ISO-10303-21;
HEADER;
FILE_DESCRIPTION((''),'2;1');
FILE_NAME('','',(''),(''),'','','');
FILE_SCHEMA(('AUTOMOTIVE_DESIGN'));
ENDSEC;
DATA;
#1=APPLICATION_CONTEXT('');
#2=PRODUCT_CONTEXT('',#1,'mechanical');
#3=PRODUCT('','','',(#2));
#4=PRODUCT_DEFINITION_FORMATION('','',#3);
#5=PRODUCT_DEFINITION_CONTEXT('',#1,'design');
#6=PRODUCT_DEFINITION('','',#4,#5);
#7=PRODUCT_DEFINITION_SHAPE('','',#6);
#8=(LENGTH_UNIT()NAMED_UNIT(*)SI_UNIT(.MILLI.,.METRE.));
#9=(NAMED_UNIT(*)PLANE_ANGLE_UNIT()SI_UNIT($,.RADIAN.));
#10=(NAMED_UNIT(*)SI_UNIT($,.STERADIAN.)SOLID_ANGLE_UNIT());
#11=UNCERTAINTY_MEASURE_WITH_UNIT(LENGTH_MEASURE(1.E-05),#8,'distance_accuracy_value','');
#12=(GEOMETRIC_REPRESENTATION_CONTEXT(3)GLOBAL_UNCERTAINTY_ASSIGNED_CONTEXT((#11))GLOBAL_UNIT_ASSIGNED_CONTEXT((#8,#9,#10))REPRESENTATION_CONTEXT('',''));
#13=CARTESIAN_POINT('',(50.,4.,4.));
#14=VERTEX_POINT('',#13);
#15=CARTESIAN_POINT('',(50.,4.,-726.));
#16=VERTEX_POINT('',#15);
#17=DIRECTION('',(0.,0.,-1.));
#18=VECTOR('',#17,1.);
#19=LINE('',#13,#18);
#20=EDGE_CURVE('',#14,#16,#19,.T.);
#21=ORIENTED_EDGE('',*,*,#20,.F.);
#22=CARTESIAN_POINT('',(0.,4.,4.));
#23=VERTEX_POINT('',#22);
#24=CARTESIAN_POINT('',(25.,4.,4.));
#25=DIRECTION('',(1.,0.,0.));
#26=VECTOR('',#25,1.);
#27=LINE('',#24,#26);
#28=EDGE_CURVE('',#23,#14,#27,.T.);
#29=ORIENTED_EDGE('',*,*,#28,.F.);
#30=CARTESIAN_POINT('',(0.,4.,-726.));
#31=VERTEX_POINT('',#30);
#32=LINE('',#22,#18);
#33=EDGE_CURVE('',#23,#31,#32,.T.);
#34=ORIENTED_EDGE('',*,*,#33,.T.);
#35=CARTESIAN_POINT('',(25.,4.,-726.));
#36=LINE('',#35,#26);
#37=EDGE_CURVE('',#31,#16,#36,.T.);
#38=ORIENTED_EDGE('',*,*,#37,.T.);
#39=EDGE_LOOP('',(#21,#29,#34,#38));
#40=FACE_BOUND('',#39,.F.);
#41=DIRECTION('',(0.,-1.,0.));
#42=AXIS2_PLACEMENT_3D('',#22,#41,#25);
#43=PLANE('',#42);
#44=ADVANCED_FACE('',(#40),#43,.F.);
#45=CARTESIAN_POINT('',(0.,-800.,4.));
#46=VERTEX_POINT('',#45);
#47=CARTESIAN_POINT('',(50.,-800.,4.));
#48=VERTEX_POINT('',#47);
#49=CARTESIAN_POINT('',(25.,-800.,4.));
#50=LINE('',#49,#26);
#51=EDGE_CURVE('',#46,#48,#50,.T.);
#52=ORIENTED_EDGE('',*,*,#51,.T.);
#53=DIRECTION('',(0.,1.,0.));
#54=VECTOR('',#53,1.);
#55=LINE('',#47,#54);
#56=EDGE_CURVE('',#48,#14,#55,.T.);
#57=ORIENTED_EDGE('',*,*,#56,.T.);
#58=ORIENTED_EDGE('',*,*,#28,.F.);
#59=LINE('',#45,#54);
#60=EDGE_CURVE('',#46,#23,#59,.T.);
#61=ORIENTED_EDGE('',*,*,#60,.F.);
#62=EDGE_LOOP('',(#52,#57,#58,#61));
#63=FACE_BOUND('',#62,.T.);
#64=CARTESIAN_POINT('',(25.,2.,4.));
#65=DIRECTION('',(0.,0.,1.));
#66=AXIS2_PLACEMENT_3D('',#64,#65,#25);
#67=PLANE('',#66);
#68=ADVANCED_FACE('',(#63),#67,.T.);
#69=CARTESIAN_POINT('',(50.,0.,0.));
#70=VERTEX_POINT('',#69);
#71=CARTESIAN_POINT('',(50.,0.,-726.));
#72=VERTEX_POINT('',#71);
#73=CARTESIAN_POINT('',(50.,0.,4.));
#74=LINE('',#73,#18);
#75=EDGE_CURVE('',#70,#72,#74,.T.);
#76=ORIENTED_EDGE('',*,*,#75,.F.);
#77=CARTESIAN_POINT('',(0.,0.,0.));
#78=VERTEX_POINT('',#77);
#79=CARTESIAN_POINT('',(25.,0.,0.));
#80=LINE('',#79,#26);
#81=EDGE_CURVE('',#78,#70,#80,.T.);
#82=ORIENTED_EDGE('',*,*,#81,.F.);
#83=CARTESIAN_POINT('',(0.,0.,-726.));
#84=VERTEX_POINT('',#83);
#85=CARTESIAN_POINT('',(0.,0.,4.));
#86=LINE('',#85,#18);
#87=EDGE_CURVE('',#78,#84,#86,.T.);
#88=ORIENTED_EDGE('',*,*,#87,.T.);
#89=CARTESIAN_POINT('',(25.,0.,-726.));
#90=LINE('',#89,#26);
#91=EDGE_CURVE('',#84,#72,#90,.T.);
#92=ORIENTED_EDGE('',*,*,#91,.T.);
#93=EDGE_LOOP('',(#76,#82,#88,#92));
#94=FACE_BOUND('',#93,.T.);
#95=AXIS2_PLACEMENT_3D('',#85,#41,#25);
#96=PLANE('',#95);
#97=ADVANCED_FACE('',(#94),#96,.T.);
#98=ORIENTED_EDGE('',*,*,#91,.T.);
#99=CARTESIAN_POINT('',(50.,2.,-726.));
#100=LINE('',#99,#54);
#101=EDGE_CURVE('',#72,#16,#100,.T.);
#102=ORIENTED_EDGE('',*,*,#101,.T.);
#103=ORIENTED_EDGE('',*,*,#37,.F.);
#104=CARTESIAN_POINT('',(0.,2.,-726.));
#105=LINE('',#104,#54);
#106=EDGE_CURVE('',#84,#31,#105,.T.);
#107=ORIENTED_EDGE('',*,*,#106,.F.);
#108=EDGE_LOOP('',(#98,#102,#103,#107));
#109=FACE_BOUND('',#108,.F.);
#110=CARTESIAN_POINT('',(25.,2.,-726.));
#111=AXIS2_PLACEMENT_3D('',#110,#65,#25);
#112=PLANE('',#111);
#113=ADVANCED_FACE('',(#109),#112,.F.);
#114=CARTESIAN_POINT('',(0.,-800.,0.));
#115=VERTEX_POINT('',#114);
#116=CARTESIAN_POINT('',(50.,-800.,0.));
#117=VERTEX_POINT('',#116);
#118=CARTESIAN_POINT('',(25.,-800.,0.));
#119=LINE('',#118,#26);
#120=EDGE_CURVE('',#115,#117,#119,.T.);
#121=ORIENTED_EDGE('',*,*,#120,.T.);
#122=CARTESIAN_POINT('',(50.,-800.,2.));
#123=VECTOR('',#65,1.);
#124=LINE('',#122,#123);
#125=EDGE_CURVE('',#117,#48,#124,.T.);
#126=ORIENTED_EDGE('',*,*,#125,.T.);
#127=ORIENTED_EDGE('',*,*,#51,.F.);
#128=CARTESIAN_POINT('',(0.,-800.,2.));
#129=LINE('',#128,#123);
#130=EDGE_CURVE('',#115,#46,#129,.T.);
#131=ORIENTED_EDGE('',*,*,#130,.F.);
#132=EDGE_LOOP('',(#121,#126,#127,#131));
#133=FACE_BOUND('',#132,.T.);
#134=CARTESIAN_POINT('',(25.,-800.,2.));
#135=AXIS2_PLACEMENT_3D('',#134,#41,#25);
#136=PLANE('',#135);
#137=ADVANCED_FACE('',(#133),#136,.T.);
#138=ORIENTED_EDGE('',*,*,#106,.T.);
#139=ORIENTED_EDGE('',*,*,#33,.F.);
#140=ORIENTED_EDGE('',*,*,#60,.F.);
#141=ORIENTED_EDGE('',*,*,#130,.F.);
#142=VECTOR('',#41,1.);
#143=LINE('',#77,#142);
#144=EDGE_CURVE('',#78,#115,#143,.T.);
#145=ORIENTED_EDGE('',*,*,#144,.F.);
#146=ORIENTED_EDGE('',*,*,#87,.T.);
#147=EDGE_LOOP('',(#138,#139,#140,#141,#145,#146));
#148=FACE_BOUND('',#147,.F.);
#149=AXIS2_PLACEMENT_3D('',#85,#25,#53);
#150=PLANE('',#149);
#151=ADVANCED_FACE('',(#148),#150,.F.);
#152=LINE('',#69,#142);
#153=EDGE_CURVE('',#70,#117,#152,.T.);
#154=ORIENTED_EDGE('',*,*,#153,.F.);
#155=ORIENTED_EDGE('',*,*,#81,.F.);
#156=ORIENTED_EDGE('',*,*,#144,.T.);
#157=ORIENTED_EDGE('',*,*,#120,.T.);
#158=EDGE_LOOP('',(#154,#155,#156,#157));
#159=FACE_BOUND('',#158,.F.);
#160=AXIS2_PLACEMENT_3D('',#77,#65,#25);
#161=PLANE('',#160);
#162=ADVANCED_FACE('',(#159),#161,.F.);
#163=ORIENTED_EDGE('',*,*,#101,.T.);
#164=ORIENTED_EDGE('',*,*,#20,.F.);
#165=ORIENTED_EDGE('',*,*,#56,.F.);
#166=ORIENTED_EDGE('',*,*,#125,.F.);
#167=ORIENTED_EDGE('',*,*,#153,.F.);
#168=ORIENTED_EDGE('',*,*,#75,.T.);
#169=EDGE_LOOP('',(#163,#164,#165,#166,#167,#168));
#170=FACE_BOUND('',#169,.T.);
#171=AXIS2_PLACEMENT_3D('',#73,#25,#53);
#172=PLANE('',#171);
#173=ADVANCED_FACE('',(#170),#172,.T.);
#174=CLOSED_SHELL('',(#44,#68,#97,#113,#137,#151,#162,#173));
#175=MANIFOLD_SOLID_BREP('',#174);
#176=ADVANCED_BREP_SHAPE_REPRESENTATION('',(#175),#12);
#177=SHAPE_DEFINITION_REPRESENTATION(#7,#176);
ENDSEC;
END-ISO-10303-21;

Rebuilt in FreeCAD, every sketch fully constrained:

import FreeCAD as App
import Part
import Sketcher

V = App.Vector
Q = App.Units.Quantity


def add_polygon(sketch, points):
    """Adds a closed chain of lines whose ends are joined by coincident constraints."""
    first, n = sketch.GeometryCount, len(points)
    for a, b in zip(points, points[1:] + points[:1]):
        sketch.addGeometry(Part.LineSegment(App.Vector(*a, 0), App.Vector(*b, 0)), False)
    for i in range(n):
        sketch.addConstraint(Sketcher.Constraint("Coincident", first + i, 2, first + (i + 1) % n, 1))

doc = App.newDocument("Part")
params = doc.addObject("Spreadsheet::Sheet", "Params")
for row, (alias, value) in enumerate([
    ("sketch1_width", "50 mm"),
    ("sketch1_height", "4 mm"),
    ("pad1_length", "800 mm"),
    ("sketch2_width", "50 mm"),
    ("sketch2_height", "4 mm"),
    ("pad2_length", "730 mm"),
], start=1):
    params.set(f"A{row}", alias)
    params.set(f"B{row}", "=" + value)
    params.setAlias(f"B{row}", alias)

body = doc.addObject("PartDesign::Body", "Body")

# Sketch on XZ plane
sketch1 = body.newObject("Sketcher::SketchObject", "Sketch")
sketch1.AttachmentSupport = (doc.getObject("XZ_Plane"), [""])
sketch1.MapMode = "FlatFace"
add_polygon(sketch1, [(0, 4), (0, 0), (50, 0), (50, 4)])  # lines 0-3
sketch1.addConstraint([
    Sketcher.Constraint("Vertical", 0),
    Sketcher.Constraint("Horizontal", 1),
    Sketcher.Constraint("Vertical", 2),
    Sketcher.Constraint("Horizontal", 3),
    Sketcher.Constraint("Coincident", 0, 2, -1, 1),
    Sketcher.Constraint("DistanceX", 1, 1, 1, 2, Q("50 mm")),
    Sketcher.Constraint("DistanceY", 0, 2, 0, 1, Q("4 mm")),
])
sketch1.setExpression("Constraints[9]", "Params.sketch1_width")
sketch1.setExpression("Constraints[10]", "Params.sketch1_height")
pad1 = body.newObject("PartDesign::Pad", "Pad")
pad1.Profile = sketch1
pad1.setExpression("Length", "Params.pad1_length")

# Sketch on XY plane
sketch2 = body.newObject("Sketcher::SketchObject", "Sketch001")
sketch2.AttachmentSupport = (doc.getObject("XY_Plane"), [""])
sketch2.MapMode = "FlatFace"
sketch2.AttachmentOffset = App.Placement(V(0, 0, 4), App.Rotation())
add_polygon(sketch2, [(0, 4), (0, 0), (50, 0), (50, 4)])  # lines 0-3
sketch2.addConstraint([
    Sketcher.Constraint("Vertical", 0),
    Sketcher.Constraint("Horizontal", 1),
    Sketcher.Constraint("Vertical", 2),
    Sketcher.Constraint("Horizontal", 3),
    Sketcher.Constraint("Coincident", 0, 2, -1, 1),
    Sketcher.Constraint("DistanceX", 1, 1, 1, 2, Q("50 mm")),
    Sketcher.Constraint("DistanceY", 0, 2, 0, 1, Q("4 mm")),
])
sketch2.setExpression("Constraints[9]", "Params.sketch2_width")
sketch2.setExpression("Constraints[10]", "Params.sketch2_height")
pad2 = body.newObject("PartDesign::Pad", "Pad001")
pad2.Profile = sketch2
pad2.setExpression("Length", "Params.pad2_length")
pad2.Reversed = True

doc.recompute()
